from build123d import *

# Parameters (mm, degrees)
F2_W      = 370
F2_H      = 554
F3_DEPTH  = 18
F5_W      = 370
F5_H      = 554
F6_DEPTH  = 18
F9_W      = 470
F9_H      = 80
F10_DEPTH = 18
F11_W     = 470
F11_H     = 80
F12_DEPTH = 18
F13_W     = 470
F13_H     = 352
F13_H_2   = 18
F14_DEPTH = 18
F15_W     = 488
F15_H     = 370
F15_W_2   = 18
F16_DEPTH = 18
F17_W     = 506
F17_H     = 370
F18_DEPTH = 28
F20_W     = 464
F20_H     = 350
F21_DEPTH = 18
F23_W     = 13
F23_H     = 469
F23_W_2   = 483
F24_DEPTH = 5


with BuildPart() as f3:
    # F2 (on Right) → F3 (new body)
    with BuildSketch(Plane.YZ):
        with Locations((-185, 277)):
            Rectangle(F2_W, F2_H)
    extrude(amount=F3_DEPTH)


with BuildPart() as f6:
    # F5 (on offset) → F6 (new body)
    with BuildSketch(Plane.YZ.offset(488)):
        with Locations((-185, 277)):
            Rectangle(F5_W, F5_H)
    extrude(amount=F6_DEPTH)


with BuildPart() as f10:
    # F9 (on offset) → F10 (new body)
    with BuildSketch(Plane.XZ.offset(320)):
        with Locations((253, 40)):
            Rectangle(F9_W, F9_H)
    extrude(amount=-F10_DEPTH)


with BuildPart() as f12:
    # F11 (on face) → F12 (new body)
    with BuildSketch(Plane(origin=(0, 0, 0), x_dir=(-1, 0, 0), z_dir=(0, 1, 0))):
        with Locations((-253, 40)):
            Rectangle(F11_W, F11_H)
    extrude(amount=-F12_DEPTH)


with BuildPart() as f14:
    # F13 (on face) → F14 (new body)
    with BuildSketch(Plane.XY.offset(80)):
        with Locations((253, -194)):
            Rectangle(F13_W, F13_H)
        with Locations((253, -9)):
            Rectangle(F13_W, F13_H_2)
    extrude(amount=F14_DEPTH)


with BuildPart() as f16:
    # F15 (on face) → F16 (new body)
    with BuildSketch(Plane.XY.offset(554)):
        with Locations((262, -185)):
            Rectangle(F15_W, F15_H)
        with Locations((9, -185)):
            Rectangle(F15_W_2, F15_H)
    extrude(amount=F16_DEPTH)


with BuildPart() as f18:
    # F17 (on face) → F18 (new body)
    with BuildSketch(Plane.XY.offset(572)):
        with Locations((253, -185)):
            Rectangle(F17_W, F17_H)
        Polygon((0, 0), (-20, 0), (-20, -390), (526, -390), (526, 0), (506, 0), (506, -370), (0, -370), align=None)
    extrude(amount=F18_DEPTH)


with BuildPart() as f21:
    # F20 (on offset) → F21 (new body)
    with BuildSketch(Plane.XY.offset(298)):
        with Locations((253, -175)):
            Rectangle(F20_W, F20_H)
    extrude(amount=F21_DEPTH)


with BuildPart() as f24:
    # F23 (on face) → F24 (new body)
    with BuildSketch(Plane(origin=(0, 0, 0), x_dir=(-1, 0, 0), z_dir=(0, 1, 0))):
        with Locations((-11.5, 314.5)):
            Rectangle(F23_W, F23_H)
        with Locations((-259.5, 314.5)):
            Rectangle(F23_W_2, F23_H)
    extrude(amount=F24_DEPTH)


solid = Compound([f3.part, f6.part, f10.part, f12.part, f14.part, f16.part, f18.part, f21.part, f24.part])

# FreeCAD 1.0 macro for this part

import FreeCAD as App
import Part
import Sketcher
Q = App.Units.Quantity


def add_polygon(sketch, points):
    """Adds a closed chain of lines whose ends are joined by coincident constraints."""
    first, n = sketch.GeometryCount, len(points)
    for a, b in zip(points, points[1:] + points[:1]):
        sketch.addGeometry(Part.LineSegment(App.Vector(*a, 0), App.Vector(*b, 0)), False)
    for i in range(n):
        sketch.addConstraint(Sketcher.Constraint("Coincident", first + i, 2, first + (i + 1) % n, 1))

doc = App.newDocument("Part")
body = doc.addObject("PartDesign::Body", "Body")

# Sketch on YZ plane
sketch1 = body.newObject("Sketcher::SketchObject", "Sketch")
sketch1.AttachmentSupport = (doc.getObject("YZ_Plane"), [""])
sketch1.MapMode = "FlatFace"
add_polygon(sketch1, [(-370, 554), (-370, 0), (0, 0), (0, 554)])  # lines 0-3
sketch1.addConstraint([
    Sketcher.Constraint("Vertical", 0),
    Sketcher.Constraint("Horizontal", 1),
    Sketcher.Constraint("Vertical", 2),
    Sketcher.Constraint("Horizontal", 3),
    Sketcher.Constraint("Coincident", 1, 2, -1, 1),
    Sketcher.Constraint("DistanceX", 1, 1, 1, 2, Q("370 mm")),
    Sketcher.Constraint("DistanceY", 0, 2, 0, 1, Q("554 mm")),
])
pad1 = body.newObject("PartDesign::Pad", "Pad")
pad1.Profile = sketch1
pad1.Length = 18
body2 = doc.addObject("PartDesign::Body", "Body001")

# Sketch on YZ plane
sketch2 = body2.newObject("Sketcher::SketchObject", "Sketch001")
sketch2.AttachmentSupport = (doc.getObject("YZ_Plane001"), [""])
sketch2.MapMode = "FlatFace"
sketch2.AttachmentOffset = App.Placement(App.Vector(0, 0, 488), App.Rotation())
add_polygon(sketch2, [(-370, 554), (-370, 0), (0, 0), (0, 554)])  # lines 0-3
sketch2.addConstraint([
    Sketcher.Constraint("Vertical", 0),
    Sketcher.Constraint("Horizontal", 1),
    Sketcher.Constraint("Vertical", 2),
    Sketcher.Constraint("Horizontal", 3),
    Sketcher.Constraint("Coincident", 1, 2, -1, 1),
    Sketcher.Constraint("DistanceX", 1, 1, 1, 2, Q("370 mm")),
    Sketcher.Constraint("DistanceY", 0, 2, 0, 1, Q("554 mm")),
])
pad2 = body2.newObject("PartDesign::Pad", "Pad001")
pad2.Profile = sketch2
pad2.Length = 18
body3 = doc.addObject("PartDesign::Body", "Body002")

# Sketch on XZ plane
sketch3 = body3.newObject("Sketcher::SketchObject", "Sketch002")
sketch3.AttachmentSupport = (doc.getObject("XZ_Plane002"), [""])
sketch3.MapMode = "FlatFace"
sketch3.AttachmentOffset = App.Placement(App.Vector(0, 0, 320), App.Rotation())
add_polygon(sketch3, [(18, 80), (18, 0), (488, 0), (488, 80)])  # lines 0-3
sketch3.addConstraint([
    Sketcher.Constraint("Vertical", 0),
    Sketcher.Constraint("Horizontal", 1),
    Sketcher.Constraint("Vertical", 2),
    Sketcher.Constraint("Horizontal", 3),
    Sketcher.Constraint("PointOnObject", 0, 2, -1),
    Sketcher.Constraint("DistanceX", 1, 1, 1, 2, Q("470 mm")),
    Sketcher.Constraint("DistanceY", 0, 2, 0, 1, Q("80 mm")),
    Sketcher.Constraint("DistanceX", -1, 1, 0, 2, Q("18 mm")),
])
pad3 = body3.newObject("PartDesign::Pad", "Pad002")
pad3.Profile = sketch3
pad3.Length = 18
pad3.Reversed = True
body4 = doc.addObject("PartDesign::Body", "Body003")

# Sketch on XZ plane
sketch4 = body4.newObject("Sketcher::SketchObject", "Sketch003")
sketch4.AttachmentSupport = (doc.getObject("XZ_Plane003"), [""])
sketch4.MapMode = "FlatFace"
add_polygon(sketch4, [(488, 80), (488, 0), (18, 0), (18, 80)])  # lines 0-3
sketch4.addConstraint([
    Sketcher.Constraint("Vertical", 0),
    Sketcher.Constraint("Horizontal", 1),
    Sketcher.Constraint("Vertical", 2),
    Sketcher.Constraint("Horizontal", 3),
    Sketcher.Constraint("PointOnObject", 0, 2, -1),
    Sketcher.Constraint("DistanceX", 1, 2, 1, 1, Q("470 mm")),
    Sketcher.Constraint("DistanceY", 0, 2, 0, 1, Q("80 mm")),
    Sketcher.Constraint("DistanceX", -1, 1, 0, 2, Q("488 mm")),
])
pad4 = body4.newObject("PartDesign::Pad", "Pad003")
pad4.Profile = sketch4
pad4.Length = 18
body5 = doc.addObject("PartDesign::Body", "Body004")

# Sketch on XY plane
sketch5 = body5.newObject("Sketcher::SketchObject", "Sketch004")
sketch5.AttachmentSupport = (doc.getObject("XY_Plane004"), [""])
sketch5.MapMode = "FlatFace"
sketch5.AttachmentOffset = App.Placement(App.Vector(0, 0, 80), App.Rotation())
add_polygon(sketch5, [(18, -370), (488, -370), (488, 0), (18, 0)])  # lines 0-3
sketch5.addConstraint([
    Sketcher.Constraint("Horizontal", 0),
    Sketcher.Constraint("Vertical", 1),
    Sketcher.Constraint("Horizontal", 2),
    Sketcher.Constraint("Vertical", 3),
    Sketcher.Constraint("PointOnObject", 1, 2, -1),
    Sketcher.Constraint("DistanceX", 0, 1, 0, 2, Q("470 mm")),
    Sketcher.Constraint("DistanceY", 1, 1, 1, 2, Q("370 mm")),
    Sketcher.Constraint("DistanceX", -1, 1, 0, 2, Q("488 mm")),
])
pad5 = body5.newObject("PartDesign::Pad", "Pad004")
pad5.Profile = sketch5
pad5.Length = 18
body6 = doc.addObject("PartDesign::Body", "Body005")

# Sketch on XY plane
sketch6 = body6.newObject("Sketcher::SketchObject", "Sketch005")
sketch6.AttachmentSupport = (doc.getObject("XY_Plane005"), [""])
sketch6.MapMode = "FlatFace"
sketch6.AttachmentOffset = App.Placement(App.Vector(0, 0, 554), App.Rotation())
add_polygon(sketch6, [(506, -370), (506, 0), (0, 0), (0, -370)])  # lines 0-3
sketch6.addConstraint([
    Sketcher.Constraint("Vertical", 0),
    Sketcher.Constraint("Horizontal", 1),
    Sketcher.Constraint("Vertical", 2),
    Sketcher.Constraint("Horizontal", 3),
    Sketcher.Constraint("Coincident", 1, 2, -1, 1),
    Sketcher.Constraint("DistanceX", 1, 2, 1, 1, Q("506 mm")),
    Sketcher.Constraint("DistanceY", 0, 1, 0, 2, Q("370 mm")),
])
pad6 = body6.newObject("PartDesign::Pad", "Pad005")
pad6.Profile = sketch6
pad6.Length = 18
body7 = doc.addObject("PartDesign::Body", "Body006")

# Sketch on XY plane
sketch7 = body7.newObject("Sketcher::SketchObject", "Sketch006")
sketch7.AttachmentSupport = (doc.getObject("XY_Plane006"), [""])
sketch7.MapMode = "FlatFace"
sketch7.AttachmentOffset = App.Placement(App.Vector(0, 0, 572), App.Rotation())
add_polygon(sketch7, [(-20, 0), (-20, -390), (526, -390), (526, 0)])  # lines 0-3
sketch7.addConstraint([
    Sketcher.Constraint("Vertical", 0),
    Sketcher.Constraint("Horizontal", 1),
    Sketcher.Constraint("Vertical", 2),
    Sketcher.Constraint("Horizontal", 3),
    Sketcher.Constraint("PointOnObject", 2, 2, -1),
    Sketcher.Constraint("DistanceX", 1, 1, 1, 2, Q("546 mm")),
    Sketcher.Constraint("DistanceY", 0, 2, 0, 1, Q("390 mm")),
    Sketcher.Constraint("DistanceX", 0, 2, -1, 1, Q("20 mm")),
])
pad7 = body7.newObject("PartDesign::Pad", "Pad006")
pad7.Profile = sketch7
pad7.Length = 28
body8 = doc.addObject("PartDesign::Body", "Body007")

# Sketch on XY plane
sketch8 = body8.newObject("Sketcher::SketchObject", "Sketch007")
sketch8.AttachmentSupport = (doc.getObject("XY_Plane007"), [""])
sketch8.MapMode = "FlatFace"
sketch8.AttachmentOffset = App.Placement(App.Vector(0, 0, 298), App.Rotation())
add_polygon(sketch8, [(21, 0), (21, -350), (485, -350), (485, 0)])  # lines 0-3
sketch8.addConstraint([
    Sketcher.Constraint("Vertical", 0),
    Sketcher.Constraint("Horizontal", 1),
    Sketcher.Constraint("Vertical", 2),
    Sketcher.Constraint("Horizontal", 3),
    Sketcher.Constraint("PointOnObject", 2, 2, -1),
    Sketcher.Constraint("DistanceX", 1, 1, 1, 2, Q("464 mm")),
    Sketcher.Constraint("DistanceY", 0, 2, 0, 1, Q("350 mm")),
    Sketcher.Constraint("DistanceX", -1, 1, 0, 2, Q("21 mm")),
])
pad8 = body8.newObject("PartDesign::Pad", "Pad007")
pad8.Profile = sketch8
pad8.Length = 18
body9 = doc.addObject("PartDesign::Body", "Body008")

# Sketch on XZ plane
sketch9 = body9.newObject("Sketcher::SketchObject", "Sketch008")
sketch9.AttachmentSupport = (doc.getObject("XZ_Plane008"), [""])
sketch9.MapMode = "FlatFace"
add_polygon(sketch9, [(5, 80), (5, 549), (501, 549), (501, 80)])  # lines 0-3
sketch9.addConstraint([
    Sketcher.Constraint("Vertical", 0),
    Sketcher.Constraint("Horizontal", 1),
    Sketcher.Constraint("Vertical", 2),
    Sketcher.Constraint("Horizontal", 3),
    Sketcher.Constraint("DistanceX", 1, 1, 1, 2, Q("496 mm")),
    Sketcher.Constraint("DistanceY", 0, 1, 0, 2, Q("469 mm")),
    Sketcher.Constraint("DistanceX", -1, 1, 0, 2, Q("5 mm")),
    Sketcher.Constraint("DistanceY", -1, 1, 0, 2, Q("549 mm")),
])
pad9 = body9.newObject("PartDesign::Pad", "Pad008")
pad9.Profile = sketch9
pad9.Length = 5
pad9.Reversed = True

doc.recompute()
